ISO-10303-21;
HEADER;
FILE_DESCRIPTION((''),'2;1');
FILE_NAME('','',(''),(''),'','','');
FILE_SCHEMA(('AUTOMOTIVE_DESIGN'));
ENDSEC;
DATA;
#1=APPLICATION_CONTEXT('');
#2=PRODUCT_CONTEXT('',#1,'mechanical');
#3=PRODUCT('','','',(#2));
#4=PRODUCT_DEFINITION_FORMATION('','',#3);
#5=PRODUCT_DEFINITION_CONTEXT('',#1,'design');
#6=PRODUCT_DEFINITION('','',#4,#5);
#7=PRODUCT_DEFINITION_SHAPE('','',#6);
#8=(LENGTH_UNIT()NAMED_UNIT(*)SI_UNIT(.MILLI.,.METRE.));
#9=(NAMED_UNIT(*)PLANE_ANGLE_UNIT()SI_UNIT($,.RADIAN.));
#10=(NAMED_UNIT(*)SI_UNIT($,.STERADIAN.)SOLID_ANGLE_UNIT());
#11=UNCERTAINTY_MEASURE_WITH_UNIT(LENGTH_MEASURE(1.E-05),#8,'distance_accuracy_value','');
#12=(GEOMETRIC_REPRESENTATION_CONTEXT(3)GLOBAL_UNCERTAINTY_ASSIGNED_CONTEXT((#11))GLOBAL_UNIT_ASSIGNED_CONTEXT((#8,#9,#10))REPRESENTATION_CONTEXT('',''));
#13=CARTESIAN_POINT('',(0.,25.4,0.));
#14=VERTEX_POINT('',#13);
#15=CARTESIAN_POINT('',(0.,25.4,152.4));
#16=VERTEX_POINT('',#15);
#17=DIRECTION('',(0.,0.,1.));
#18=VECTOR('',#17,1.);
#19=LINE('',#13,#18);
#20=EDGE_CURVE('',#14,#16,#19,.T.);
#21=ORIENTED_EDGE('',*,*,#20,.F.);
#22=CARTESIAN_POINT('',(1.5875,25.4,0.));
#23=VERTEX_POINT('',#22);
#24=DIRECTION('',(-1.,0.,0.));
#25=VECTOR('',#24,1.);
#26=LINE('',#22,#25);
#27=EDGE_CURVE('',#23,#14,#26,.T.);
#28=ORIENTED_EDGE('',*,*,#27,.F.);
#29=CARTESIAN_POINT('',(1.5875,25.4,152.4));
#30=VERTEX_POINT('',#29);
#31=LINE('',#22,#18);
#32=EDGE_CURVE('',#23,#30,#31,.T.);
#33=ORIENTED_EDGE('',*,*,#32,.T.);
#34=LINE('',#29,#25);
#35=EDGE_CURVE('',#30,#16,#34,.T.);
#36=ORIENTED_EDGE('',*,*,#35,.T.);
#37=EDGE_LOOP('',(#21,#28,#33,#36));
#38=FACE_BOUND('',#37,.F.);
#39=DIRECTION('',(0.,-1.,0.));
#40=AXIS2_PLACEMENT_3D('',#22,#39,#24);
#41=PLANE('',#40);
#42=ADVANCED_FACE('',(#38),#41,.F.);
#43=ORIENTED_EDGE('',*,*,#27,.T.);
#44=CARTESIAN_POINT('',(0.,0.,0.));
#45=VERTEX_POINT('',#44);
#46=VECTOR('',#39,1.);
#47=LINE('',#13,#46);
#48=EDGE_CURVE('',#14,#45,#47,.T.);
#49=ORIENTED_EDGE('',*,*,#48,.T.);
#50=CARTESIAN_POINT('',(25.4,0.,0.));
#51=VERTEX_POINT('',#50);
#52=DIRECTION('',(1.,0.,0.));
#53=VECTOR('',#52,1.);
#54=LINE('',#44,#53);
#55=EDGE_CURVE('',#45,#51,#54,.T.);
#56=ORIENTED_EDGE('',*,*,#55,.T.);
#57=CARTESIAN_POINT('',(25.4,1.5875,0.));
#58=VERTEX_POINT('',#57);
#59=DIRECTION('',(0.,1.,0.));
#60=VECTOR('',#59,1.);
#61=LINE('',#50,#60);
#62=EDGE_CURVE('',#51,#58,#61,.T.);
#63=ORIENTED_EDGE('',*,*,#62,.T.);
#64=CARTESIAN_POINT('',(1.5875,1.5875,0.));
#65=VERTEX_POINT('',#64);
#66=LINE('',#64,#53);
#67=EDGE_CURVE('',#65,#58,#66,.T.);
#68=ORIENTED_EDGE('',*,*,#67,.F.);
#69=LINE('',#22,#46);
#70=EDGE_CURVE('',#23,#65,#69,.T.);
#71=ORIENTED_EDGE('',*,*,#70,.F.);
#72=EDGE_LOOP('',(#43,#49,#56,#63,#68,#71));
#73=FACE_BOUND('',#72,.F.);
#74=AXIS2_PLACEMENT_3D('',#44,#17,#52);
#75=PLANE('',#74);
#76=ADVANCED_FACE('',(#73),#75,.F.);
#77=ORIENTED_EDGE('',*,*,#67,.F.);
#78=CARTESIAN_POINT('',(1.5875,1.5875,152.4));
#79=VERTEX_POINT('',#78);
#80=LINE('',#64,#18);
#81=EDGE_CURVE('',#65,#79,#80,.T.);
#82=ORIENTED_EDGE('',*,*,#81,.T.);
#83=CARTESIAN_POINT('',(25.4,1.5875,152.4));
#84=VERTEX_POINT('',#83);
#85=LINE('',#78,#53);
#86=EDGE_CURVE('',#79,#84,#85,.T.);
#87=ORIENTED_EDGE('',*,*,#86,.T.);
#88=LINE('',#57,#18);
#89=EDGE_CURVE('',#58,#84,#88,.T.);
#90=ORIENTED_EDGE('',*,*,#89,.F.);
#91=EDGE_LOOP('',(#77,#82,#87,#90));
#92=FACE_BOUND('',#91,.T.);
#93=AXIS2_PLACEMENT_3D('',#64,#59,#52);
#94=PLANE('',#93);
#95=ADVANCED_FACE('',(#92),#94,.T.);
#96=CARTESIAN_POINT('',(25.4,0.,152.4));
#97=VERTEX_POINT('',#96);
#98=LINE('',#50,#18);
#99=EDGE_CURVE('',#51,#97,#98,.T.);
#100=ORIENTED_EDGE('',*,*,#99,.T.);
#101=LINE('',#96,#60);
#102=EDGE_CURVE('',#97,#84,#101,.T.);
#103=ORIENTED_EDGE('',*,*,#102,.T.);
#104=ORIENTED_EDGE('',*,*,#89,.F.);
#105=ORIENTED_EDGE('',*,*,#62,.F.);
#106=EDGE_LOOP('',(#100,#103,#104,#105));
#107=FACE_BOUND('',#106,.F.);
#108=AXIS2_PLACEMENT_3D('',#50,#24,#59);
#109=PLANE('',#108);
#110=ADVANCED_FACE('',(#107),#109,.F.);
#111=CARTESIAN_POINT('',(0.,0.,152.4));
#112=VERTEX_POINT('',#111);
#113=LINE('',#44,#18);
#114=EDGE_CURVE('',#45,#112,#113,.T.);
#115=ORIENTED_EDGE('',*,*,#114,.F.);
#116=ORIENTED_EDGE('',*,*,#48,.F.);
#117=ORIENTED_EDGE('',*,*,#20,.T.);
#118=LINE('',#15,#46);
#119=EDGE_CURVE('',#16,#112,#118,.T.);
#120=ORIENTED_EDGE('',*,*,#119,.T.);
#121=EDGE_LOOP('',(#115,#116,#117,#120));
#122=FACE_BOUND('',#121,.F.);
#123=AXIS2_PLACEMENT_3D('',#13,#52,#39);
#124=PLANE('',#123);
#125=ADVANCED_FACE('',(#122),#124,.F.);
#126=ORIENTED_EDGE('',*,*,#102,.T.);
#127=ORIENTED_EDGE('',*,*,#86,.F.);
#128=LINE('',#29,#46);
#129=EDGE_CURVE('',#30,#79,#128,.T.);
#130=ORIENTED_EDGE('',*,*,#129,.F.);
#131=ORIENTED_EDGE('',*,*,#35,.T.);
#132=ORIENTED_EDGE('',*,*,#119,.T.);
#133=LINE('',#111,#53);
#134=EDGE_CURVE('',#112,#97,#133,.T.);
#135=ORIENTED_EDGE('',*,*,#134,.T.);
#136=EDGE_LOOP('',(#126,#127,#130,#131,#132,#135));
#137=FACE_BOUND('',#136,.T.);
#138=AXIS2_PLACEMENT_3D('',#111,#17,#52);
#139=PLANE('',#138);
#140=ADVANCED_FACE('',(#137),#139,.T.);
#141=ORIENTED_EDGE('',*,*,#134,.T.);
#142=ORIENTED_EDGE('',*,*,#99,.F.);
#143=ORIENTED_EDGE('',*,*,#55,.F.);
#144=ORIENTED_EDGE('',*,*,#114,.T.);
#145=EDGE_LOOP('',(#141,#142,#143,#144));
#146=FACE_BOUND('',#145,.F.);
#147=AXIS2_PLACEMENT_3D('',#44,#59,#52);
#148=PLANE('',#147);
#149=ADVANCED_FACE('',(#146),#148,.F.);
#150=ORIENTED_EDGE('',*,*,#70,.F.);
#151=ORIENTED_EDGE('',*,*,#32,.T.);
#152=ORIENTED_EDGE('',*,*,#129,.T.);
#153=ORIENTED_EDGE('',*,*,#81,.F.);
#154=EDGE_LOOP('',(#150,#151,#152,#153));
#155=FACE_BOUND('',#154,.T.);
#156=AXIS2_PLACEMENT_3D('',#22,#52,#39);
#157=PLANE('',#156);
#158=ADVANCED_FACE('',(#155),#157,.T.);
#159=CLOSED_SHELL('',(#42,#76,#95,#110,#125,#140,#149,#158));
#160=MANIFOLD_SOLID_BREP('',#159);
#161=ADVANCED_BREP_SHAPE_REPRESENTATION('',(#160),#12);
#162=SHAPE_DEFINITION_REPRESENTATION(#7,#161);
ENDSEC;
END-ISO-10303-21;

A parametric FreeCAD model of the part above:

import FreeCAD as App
import Part
import Sketcher

V = App.Vector
Q = App.Units.Quantity

doc = App.newDocument("Part")
params = doc.addObject("Spreadsheet::Sheet", "Params")
for row, (alias, value) in enumerate([
    ("sketch1_width", "1 in"),
    ("sketch1_width2", "0.0625 in"),
    ("pad1_length", "6 in"),
], start=1):
    params.set(f"A{row}", alias)
    params.set(f"B{row}", "=" + value)
    params.setAlias(f"B{row}", alias)

body = doc.addObject("PartDesign::Body", "Body")

# Sketch on XY plane
sketch1 = doc.addObject("Sketcher::SketchObject", "Sketch")
body.addObject(sketch1)
sketch1.AttachmentSupport = (doc.XY_Plane, [""])
sketch1.MapMode = "FlatFace"
sketch1.addGeometry([
    Part.LineSegment(V(0, 25.4, 0), V(0, 0, 0)),  # 0
    Part.LineSegment(V(0, 0, 0), V(25.4, 0, 0)),  # 1
    Part.LineSegment(V(25.4, 0, 0), V(25.4, 1.5875, 0)),  # 2
    Part.LineSegment(V(25.4, 1.5875, 0), V(1.5875, 1.5875, 0)),  # 3
    Part.LineSegment(V(1.5875, 1.5875, 0), V(1.5875, 25.4, 0)),  # 4
    Part.LineSegment(V(1.5875, 25.4, 0), V(0, 25.4, 0)),  # 5
], False)
sketch1.addConstraint([
    Sketcher.Constraint("Coincident", 0, 2, 1, 1),
    Sketcher.Constraint("Coincident", 1, 2, 2, 1),
    Sketcher.Constraint("Coincident", 2, 2, 3, 1),
    Sketcher.Constraint("Coincident", 3, 2, 4, 1),
    Sketcher.Constraint("Coincident", 4, 2, 5, 1),
    Sketcher.Constraint("Coincident", 5, 2, 0, 1),
    Sketcher.Constraint("Vertical", 0),
    Sketcher.Constraint("Horizontal", 1),
    Sketcher.Constraint("Vertical", 2),
    Sketcher.Constraint("Horizontal", 3),
    Sketcher.Constraint("Vertical", 4),
    Sketcher.Constraint("Horizontal", 5),
    Sketcher.Constraint("Coincident", 0, 2, -1, 1),
    Sketcher.Constraint("Equal", 1, 0),
    Sketcher.Constraint("Equal", 5, 2),
    Sketcher.Constraint("DistanceX", 1, 1, 1, 2, Q("1 in")),
    Sketcher.Constraint("DistanceX", 5, 2, 5, 1, Q("0.0625 in")),
])
sketch1.setExpression("Constraints[15]", "Params.sketch1_width")
sketch1.setExpression("Constraints[16]", "Params.sketch1_width2")
pad1 = doc.addObject("PartDesign::Pad", "Pad")
body.addObject(pad1)
pad1.Profile = sketch1
pad1.setExpression("Length", "Params.pad1_length")

doc.recompute()
